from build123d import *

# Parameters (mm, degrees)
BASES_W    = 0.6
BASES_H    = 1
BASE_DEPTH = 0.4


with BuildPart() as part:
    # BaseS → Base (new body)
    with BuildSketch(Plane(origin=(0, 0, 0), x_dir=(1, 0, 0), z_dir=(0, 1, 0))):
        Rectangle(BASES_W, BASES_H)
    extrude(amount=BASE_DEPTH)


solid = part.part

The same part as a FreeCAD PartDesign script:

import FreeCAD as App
import Part
import Sketcher
from FreeCAD import Vector
Q = App.Units.Quantity

doc = App.newDocument("Part")
body = doc.addObject("PartDesign::Body", "Body")

sketch1 = body.newObject("Sketcher::SketchObject", "Sketch")
sketch1.AttachmentSupport = (doc.getObject("XZ_Plane"), [""])
sketch1.MapMode = "FlatFace"
sketch1.addGeometry(Part.LineSegment(Vector(-0.3, -0.5, 0), Vector(-0.3, 0.5, 0)), False)
sketch1.addGeometry(Part.LineSegment(Vector(-0.3, 0.5, 0), Vector(0.3, 0.5, 0)), False)
sketch1.addGeometry(Part.LineSegment(Vector(0.3, 0.5, 0), Vector(0.3, -0.5, 0)), False)
sketch1.addGeometry(Part.LineSegment(Vector(0.3, -0.5, 0), Vector(-0.3, -0.5, 0)), False)
sketch1.addConstraint(Sketcher.Constraint("Coincident", 0, 2, 1, 1))
sketch1.addConstraint(Sketcher.Constraint("Coincident", 1, 2, 2, 1))
sketch1.addConstraint(Sketcher.Constraint("Coincident", 2, 2, 3, 1))
sketch1.addConstraint(Sketcher.Constraint("Coincident", 3, 2, 0, 1))
sketch1.addConstraint(Sketcher.Constraint("Vertical", 0))
sketch1.addConstraint(Sketcher.Constraint("Horizontal", 1))
sketch1.addConstraint(Sketcher.Constraint("Vertical", 2))
sketch1.addConstraint(Sketcher.Constraint("Horizontal", 3))
sketch1.addConstraint(Sketcher.Constraint("Symmetric", 0, 2, 2, 2, -1, 1))
sketch1.addConstraint(Sketcher.Constraint("DistanceY", 0, 1, 0, 2, Q("1 mm")))
sketch1.addConstraint(Sketcher.Constraint("DistanceX", 1, 1, 1, 2, Q("0.6 mm")))
pad1 = body.newObject("PartDesign::Pad", "Pad")
pad1.Profile = sketch1
pad1.Length = 0.4
pad1.Reversed = True

doc.recompute()
